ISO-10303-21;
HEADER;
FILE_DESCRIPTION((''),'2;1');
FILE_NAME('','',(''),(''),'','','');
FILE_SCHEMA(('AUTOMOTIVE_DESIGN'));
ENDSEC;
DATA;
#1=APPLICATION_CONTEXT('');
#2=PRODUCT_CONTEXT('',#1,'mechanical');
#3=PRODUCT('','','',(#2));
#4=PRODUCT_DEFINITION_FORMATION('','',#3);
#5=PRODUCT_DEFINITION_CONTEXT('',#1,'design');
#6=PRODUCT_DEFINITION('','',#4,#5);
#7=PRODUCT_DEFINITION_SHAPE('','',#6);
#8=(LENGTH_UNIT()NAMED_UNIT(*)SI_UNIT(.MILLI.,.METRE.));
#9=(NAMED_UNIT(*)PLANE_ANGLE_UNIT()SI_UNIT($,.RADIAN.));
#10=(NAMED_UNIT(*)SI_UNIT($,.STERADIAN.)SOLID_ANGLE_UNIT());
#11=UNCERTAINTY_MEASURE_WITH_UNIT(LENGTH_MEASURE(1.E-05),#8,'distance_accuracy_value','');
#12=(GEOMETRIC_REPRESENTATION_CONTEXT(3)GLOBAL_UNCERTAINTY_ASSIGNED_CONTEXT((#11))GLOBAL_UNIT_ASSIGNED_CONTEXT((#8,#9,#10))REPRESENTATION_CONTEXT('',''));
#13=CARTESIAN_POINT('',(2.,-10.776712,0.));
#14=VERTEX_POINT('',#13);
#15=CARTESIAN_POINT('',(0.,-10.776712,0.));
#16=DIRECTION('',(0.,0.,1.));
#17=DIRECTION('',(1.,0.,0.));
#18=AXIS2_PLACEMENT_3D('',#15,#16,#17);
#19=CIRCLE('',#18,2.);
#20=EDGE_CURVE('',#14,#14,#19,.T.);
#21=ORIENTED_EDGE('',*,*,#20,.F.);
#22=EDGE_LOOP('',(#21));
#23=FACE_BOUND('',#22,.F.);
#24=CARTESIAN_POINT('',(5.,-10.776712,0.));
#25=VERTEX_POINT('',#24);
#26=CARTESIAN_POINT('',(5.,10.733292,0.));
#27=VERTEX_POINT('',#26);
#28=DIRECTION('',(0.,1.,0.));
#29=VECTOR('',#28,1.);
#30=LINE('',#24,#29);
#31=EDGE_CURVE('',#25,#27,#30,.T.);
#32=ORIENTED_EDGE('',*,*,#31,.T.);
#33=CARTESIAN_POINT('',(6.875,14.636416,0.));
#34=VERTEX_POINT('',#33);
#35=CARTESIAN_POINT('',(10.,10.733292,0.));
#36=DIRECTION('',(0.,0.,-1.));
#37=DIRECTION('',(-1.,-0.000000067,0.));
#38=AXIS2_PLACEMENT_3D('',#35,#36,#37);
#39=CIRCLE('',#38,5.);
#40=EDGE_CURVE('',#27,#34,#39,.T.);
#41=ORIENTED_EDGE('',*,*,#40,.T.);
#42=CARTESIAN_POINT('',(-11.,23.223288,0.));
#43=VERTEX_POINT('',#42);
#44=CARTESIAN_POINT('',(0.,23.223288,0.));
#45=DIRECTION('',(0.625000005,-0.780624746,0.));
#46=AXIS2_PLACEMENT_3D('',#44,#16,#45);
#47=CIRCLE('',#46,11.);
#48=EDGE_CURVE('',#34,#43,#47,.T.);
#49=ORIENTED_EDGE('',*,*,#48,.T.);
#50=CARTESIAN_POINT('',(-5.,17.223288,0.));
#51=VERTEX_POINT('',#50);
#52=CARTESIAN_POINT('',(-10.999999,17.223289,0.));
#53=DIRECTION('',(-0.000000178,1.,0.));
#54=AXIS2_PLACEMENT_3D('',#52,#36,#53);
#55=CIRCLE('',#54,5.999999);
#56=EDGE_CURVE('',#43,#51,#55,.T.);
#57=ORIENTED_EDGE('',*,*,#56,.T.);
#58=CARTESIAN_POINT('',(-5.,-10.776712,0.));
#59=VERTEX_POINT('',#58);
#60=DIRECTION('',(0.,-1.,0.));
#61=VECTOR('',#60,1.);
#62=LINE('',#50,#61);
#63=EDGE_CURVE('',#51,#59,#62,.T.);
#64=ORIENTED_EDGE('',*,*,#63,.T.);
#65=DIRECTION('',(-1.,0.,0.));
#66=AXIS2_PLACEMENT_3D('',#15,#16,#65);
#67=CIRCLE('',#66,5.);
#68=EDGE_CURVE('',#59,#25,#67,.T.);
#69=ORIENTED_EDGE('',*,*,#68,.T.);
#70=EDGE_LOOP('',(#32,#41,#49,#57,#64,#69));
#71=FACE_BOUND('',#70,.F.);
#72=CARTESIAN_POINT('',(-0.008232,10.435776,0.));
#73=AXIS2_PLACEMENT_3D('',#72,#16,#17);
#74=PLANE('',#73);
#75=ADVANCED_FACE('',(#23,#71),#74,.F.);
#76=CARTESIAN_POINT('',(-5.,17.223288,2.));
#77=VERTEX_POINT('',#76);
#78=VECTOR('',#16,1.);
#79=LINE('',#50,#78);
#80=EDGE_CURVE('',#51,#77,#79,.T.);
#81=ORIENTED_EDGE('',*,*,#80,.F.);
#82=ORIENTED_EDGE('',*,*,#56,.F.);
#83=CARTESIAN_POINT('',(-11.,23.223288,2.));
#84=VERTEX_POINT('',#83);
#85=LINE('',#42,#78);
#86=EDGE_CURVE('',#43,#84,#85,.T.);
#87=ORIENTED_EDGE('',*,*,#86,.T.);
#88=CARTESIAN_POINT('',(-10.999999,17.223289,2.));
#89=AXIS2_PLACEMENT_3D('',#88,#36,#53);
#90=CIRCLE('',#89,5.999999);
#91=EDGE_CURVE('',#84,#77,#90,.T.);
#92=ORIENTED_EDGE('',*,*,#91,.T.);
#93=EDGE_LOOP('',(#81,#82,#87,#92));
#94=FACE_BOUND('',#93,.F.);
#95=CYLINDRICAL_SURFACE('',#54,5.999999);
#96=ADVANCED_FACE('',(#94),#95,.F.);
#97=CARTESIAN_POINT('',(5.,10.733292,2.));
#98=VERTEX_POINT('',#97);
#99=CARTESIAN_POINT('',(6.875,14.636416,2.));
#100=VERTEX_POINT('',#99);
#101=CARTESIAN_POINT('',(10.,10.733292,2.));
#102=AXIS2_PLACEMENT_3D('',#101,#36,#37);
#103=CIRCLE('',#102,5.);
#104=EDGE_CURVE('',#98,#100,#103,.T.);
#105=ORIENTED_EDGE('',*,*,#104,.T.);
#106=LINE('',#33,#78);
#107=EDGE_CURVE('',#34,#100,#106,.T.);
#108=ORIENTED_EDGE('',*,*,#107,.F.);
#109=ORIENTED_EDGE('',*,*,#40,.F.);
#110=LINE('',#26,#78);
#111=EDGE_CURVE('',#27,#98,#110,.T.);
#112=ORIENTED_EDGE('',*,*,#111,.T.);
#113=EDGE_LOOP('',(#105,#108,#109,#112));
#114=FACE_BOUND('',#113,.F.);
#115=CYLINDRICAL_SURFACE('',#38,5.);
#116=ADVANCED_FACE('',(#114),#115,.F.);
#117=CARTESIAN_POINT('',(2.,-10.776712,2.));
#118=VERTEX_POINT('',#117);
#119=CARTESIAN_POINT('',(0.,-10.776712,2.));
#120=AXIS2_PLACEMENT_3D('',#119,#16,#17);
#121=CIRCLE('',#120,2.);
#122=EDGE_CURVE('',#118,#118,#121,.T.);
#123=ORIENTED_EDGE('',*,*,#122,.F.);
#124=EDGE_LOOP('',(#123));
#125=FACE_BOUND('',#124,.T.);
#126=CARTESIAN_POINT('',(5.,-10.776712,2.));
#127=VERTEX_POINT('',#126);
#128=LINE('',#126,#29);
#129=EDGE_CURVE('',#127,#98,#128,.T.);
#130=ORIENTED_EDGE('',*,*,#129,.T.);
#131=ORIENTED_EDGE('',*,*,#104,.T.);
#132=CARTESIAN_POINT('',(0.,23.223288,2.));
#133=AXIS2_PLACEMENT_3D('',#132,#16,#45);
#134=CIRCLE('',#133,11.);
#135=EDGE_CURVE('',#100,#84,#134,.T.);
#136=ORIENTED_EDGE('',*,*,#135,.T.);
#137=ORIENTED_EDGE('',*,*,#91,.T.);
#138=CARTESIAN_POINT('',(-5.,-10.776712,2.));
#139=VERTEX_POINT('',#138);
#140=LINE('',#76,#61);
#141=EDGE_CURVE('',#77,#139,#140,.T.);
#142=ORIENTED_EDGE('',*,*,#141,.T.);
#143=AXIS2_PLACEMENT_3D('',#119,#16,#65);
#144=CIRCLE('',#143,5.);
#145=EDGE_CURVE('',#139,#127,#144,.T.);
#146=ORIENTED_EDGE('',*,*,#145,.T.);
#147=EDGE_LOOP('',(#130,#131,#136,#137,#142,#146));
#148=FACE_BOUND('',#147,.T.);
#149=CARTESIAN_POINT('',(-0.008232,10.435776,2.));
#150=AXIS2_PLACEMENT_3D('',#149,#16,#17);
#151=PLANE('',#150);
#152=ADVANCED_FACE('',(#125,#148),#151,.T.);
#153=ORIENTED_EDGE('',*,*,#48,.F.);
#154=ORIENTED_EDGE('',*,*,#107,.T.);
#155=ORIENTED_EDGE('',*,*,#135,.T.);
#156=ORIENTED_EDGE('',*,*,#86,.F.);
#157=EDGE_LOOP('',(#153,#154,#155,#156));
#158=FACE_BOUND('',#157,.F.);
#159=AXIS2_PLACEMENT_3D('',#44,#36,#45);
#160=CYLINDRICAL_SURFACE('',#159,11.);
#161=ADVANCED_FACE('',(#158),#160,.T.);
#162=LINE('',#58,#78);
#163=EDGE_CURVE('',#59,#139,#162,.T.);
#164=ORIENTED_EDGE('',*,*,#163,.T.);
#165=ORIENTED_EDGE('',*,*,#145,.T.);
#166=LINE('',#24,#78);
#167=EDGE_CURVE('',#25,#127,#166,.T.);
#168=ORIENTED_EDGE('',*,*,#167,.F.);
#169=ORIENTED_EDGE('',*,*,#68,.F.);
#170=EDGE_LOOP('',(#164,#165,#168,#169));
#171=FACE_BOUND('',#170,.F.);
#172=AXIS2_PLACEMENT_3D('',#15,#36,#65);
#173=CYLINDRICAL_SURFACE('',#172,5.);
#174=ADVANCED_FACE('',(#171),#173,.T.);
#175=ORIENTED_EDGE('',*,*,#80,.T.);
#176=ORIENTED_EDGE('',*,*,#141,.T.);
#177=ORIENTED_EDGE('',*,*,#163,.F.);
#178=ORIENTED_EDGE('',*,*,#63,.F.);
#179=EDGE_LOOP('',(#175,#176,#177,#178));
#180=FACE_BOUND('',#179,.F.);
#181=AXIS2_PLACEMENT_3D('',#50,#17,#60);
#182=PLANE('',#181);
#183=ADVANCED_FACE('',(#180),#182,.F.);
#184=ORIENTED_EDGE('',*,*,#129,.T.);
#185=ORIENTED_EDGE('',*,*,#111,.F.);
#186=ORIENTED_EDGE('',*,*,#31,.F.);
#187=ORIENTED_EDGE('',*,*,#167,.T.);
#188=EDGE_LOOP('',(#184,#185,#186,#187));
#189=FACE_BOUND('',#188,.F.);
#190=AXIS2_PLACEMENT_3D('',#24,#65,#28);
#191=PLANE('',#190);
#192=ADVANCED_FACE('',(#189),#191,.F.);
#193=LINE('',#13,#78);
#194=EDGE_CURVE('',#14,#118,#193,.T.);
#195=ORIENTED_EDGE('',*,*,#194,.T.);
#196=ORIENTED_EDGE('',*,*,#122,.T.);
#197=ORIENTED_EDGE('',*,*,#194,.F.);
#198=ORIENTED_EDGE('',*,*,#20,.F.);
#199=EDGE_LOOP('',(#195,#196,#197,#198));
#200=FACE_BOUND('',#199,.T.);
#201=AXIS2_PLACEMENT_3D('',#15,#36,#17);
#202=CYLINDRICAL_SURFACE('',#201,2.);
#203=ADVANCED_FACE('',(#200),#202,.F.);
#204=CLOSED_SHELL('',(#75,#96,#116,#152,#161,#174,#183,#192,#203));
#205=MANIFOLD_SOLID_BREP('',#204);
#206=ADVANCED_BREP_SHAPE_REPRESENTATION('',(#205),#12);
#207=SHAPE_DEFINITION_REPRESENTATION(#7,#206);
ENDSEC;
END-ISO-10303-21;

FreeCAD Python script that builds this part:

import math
import FreeCAD as App
import Part
import Sketcher

V = App.Vector

doc = App.newDocument("Part")
body = doc.addObject("PartDesign::Body", "Body")

# Sketch on XY plane
sketch1 = body.newObject("Sketcher::SketchObject", "Sketch")
sketch1.AttachmentSupport = (doc.getObject("XY_Plane"), [""])
sketch1.MapMode = "FlatFace"
sketch1.addGeometry(Part.LineSegment(V(-5, 17.223288, 0), V(-5, -10.776712, 0)), False)
sketch1.addGeometry(Part.ArcOfCircle(Part.Circle(V(0, -10.776712, 0), V(0, 0, 1), 5), math.radians(180), math.radians(360)), False)
sketch1.addGeometry(Part.LineSegment(V(5, -10.776712, 0), V(5, 10.733292, 0)), False)
sketch1.addGeometry(Part.ArcOfCircle(Part.Circle(V(10, 10.733292, 0), V(0, 0, 1), 5), math.radians(128.682187), math.radians(180.000004)), False)
sketch1.addGeometry(Part.ArcOfCircle(Part.Circle(V(0, 23.223288, 0), V(0, 0, 1), 11), math.radians(-51.317812), math.radians(180.000001)), False)
sketch1.addGeometry(Part.ArcOfCircle(Part.Circle(V(-10.999999, 17.223289, 0), V(0, 0, 1), 5.999999), math.radians(-0.00001), math.radians(90.00001)), False)
sketch1.addGeometry(Part.Circle(V(0, -10.776712, 0), V(0, 0, 1), 2), False)
sketch1.addConstraint(Sketcher.Constraint("Tangent", 0, 2, 1, 1))
sketch1.addConstraint(Sketcher.Constraint("Tangent", 1, 2, 2, 1))
sketch1.addConstraint(Sketcher.Constraint("Tangent", 2, 2, 3, 2))
sketch1.addConstraint(Sketcher.Constraint("Tangent", 3, 1, 4, 1))
sketch1.addConstraint(Sketcher.Constraint("Coincident", 4, 2, 5, 2))
sketch1.addConstraint(Sketcher.Constraint("Tangent", 5, 1, 0, 1))
sketch1.addConstraint(Sketcher.Constraint("Vertical", 0))
sketch1.addConstraint(Sketcher.Constraint("Vertical", 2))
sketch1.addConstraint(Sketcher.Constraint("Coincident", 6, 3, 1, 3))
sketch1.addConstraint(Sketcher.Constraint("Equal", 1, 3))
sketch1.addConstraint(Sketcher.Constraint("PointOnObject", 1, 3, -2))
sketch1.addConstraint(Sketcher.Constraint("PointOnObject", 4, 3, -2))
sketch1.addConstraint(Sketcher.Constraint("Vertical", 5, 3, 4, 2))
sketch1.addConstraint(Sketcher.Constraint("Diameter", 6, 4.0))
sketch1.addConstraint(Sketcher.Constraint("Radius", 1, 5.0))
sketch1.addConstraint(Sketcher.Constraint("Radius", 4, 11.0))
sketch1.addConstraint(Sketcher.Constraint("DistanceY", 0, 2, 0, 1, 28.0))
sketch1.addConstraint(Sketcher.Constraint("DistanceY", 1, 3, 4, 3, 34.0))
sketch1.addConstraint(Sketcher.Constraint("DistanceY", -1, 1, 4, 3, 23.223288))
pad1 = body.newObject("PartDesign::Pad", "Pad")
pad1.Profile = sketch1
pad1.Length = 2

doc.recompute()
